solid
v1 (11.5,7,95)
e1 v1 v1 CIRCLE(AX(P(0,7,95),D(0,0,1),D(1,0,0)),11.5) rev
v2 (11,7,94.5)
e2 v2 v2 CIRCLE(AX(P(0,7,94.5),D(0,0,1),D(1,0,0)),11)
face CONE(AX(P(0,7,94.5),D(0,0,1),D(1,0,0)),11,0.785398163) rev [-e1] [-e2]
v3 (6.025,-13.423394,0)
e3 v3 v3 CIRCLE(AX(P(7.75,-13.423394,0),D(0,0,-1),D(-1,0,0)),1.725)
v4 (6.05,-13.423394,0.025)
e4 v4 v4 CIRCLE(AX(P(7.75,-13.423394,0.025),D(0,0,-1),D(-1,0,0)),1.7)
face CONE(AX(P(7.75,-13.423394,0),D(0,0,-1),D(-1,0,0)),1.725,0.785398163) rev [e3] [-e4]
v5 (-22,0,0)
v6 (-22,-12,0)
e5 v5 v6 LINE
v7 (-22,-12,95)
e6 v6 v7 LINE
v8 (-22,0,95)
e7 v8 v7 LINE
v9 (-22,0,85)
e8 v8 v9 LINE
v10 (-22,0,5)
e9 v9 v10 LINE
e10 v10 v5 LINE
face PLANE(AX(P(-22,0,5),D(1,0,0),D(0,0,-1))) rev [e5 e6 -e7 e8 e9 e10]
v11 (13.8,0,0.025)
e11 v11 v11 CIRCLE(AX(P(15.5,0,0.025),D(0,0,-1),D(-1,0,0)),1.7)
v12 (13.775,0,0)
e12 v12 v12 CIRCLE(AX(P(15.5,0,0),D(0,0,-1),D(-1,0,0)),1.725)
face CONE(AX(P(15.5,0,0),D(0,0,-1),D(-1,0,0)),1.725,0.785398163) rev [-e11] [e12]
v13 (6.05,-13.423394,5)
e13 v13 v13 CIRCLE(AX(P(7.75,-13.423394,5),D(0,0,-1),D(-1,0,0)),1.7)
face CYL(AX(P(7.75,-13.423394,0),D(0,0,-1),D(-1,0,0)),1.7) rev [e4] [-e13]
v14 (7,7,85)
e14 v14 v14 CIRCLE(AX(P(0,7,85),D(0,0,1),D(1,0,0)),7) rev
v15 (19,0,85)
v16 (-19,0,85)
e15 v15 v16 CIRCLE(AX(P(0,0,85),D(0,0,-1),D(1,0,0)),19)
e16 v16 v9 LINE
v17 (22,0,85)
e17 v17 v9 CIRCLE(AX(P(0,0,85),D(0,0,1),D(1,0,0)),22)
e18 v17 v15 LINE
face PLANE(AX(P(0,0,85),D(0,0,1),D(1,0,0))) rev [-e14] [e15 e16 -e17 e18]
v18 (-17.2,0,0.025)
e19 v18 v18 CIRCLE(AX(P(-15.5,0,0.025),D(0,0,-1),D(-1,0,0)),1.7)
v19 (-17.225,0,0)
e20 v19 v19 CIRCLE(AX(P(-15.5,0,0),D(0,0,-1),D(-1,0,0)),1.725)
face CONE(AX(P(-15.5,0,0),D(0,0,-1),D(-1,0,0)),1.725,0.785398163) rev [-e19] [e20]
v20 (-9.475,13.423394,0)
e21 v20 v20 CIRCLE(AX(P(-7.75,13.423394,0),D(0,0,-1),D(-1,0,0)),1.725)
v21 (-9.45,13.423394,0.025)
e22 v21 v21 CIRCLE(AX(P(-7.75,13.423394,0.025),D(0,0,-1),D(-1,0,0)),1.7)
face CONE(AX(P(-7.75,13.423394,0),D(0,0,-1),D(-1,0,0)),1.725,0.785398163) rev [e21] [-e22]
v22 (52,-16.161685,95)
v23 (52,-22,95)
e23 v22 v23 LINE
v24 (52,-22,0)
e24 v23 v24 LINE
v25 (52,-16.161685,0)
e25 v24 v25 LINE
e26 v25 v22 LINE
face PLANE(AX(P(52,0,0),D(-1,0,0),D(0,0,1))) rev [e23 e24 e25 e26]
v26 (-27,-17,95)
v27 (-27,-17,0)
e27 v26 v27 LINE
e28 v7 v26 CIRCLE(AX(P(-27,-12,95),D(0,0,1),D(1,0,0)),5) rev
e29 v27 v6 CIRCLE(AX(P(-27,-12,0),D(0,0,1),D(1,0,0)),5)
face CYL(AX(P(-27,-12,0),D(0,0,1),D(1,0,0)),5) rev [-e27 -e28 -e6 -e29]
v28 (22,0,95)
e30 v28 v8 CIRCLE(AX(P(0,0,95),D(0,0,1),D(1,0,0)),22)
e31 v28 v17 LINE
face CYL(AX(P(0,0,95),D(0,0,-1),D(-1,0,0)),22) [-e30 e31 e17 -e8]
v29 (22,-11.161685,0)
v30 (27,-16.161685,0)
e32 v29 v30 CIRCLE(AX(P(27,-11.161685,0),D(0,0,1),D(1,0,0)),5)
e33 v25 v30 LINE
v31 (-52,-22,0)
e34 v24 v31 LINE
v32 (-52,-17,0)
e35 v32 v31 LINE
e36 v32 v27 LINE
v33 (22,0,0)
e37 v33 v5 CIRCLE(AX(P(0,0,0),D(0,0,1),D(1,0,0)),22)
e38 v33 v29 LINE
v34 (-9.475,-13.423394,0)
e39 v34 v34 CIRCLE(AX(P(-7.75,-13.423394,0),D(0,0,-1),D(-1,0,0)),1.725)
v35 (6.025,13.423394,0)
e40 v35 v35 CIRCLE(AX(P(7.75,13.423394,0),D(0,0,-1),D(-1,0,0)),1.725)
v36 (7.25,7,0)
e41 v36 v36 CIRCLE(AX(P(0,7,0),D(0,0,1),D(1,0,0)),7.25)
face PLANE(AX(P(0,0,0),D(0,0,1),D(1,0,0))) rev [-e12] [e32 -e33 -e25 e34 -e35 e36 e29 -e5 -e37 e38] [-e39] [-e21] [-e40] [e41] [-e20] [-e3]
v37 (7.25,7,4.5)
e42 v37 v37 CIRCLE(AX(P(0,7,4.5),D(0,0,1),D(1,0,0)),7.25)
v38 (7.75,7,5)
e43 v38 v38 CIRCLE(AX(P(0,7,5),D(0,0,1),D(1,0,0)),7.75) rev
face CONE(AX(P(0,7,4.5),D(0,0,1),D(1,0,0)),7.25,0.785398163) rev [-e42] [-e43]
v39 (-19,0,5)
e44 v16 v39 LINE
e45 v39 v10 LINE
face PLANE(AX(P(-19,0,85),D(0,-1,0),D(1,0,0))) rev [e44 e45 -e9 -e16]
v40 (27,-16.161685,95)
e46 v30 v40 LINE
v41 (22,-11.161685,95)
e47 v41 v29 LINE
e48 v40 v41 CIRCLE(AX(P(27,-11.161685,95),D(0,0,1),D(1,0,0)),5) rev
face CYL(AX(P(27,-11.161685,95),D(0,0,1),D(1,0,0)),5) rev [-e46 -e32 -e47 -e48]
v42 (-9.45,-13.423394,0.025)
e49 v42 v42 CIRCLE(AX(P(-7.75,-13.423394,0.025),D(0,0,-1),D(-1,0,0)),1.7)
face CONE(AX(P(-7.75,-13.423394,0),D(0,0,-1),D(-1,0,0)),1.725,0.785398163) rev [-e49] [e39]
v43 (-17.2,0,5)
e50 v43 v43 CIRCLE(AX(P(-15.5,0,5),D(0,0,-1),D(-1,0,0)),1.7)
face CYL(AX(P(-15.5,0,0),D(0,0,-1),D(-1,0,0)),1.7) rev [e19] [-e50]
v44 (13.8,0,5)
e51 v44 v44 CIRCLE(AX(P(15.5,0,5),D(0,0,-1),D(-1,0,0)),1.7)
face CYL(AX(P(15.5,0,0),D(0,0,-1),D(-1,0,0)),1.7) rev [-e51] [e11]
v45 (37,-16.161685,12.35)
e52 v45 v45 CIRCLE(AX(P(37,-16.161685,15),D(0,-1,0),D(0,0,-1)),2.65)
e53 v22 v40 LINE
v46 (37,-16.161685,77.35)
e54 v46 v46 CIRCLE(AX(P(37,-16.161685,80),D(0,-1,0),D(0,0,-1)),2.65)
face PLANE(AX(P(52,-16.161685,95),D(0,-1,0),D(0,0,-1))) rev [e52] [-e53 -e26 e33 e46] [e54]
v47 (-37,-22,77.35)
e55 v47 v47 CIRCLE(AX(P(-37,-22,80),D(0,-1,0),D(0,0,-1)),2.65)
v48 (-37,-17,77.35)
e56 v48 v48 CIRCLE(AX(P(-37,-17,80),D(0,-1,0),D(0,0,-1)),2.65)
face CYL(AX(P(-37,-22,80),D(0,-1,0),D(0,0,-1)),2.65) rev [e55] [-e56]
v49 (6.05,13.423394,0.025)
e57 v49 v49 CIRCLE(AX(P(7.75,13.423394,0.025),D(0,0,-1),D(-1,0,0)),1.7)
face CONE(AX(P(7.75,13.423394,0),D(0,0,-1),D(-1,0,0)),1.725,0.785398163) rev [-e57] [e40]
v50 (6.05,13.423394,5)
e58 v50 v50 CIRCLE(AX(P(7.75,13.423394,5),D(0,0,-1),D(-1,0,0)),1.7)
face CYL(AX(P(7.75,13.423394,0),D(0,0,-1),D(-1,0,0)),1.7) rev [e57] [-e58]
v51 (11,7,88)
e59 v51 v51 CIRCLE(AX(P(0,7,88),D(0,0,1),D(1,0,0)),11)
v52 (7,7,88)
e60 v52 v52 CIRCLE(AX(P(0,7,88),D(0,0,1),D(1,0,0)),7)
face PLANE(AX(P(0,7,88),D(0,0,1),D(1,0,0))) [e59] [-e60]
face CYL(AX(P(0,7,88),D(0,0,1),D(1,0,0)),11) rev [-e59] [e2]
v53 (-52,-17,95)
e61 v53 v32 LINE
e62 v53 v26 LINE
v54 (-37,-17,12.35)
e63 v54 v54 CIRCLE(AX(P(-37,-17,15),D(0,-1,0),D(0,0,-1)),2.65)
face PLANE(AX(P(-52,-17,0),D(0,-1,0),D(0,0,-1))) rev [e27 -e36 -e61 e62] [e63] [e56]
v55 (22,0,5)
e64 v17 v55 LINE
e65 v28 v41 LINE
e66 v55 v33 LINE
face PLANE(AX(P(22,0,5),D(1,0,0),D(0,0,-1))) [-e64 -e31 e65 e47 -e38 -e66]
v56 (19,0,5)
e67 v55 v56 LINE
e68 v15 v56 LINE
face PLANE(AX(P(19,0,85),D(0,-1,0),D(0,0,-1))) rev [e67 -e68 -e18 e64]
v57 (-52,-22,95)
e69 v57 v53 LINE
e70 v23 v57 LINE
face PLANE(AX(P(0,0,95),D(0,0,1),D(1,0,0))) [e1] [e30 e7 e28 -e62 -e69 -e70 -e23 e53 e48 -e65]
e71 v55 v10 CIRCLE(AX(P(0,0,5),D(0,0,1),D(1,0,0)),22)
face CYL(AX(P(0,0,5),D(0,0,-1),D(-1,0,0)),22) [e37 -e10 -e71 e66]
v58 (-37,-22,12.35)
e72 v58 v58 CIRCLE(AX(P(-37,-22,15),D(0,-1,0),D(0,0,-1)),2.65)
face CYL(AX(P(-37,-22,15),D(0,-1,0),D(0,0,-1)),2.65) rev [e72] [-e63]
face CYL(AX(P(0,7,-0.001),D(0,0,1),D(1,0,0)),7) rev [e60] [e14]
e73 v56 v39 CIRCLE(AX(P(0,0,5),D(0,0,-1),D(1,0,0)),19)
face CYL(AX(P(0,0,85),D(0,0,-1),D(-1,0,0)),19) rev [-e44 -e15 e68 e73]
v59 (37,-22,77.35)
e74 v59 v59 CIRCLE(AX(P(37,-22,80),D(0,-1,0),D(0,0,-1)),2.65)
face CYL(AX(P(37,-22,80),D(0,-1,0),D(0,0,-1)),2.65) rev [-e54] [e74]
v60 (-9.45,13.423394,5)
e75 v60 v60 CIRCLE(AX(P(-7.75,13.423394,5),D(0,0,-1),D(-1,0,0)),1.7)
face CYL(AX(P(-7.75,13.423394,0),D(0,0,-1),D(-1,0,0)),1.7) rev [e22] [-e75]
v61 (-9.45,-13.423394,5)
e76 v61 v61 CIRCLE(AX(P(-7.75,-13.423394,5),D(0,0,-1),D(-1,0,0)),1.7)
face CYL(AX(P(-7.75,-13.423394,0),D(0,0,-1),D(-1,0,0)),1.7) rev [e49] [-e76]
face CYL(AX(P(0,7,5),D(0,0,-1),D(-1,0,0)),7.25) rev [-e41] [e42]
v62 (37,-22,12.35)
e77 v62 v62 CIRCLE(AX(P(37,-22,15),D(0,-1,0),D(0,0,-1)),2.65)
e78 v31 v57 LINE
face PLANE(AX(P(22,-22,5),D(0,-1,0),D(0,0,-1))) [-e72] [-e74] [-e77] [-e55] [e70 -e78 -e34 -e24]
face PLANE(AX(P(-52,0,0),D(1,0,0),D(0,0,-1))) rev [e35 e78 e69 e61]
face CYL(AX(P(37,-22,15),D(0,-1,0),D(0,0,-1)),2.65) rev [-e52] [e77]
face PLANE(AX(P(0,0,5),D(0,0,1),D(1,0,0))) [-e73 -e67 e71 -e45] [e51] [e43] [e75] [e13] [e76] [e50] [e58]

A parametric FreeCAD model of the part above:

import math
import FreeCAD as App
import Part
import Sketcher

V = App.Vector


def edges_at(feature, points):
    """Names of the edges that pass closest to the given points."""
    edges = feature.Shape.Edges
    near = lambda p: min(range(len(edges)), key=lambda i: edges[i].distToShape(Part.Vertex(*p))[0])
    return sorted({f"Edge{near(p) + 1}" for p in points})


def add_polygon(sketch, points):
    """Adds a closed chain of lines whose ends are joined by coincident constraints."""
    first, n = sketch.GeometryCount, len(points)
    for a, b in zip(points, points[1:] + points[:1]):
        sketch.addGeometry(Part.LineSegment(App.Vector(*a, 0), App.Vector(*b, 0)), False)
    for i in range(n):
        sketch.addConstraint(Sketcher.Constraint("Coincident", first + i, 2, first + (i + 1) % n, 1))

doc = App.newDocument("Part")
body = doc.addObject("PartDesign::Body", "Body")

# Sketch on XY plane
sketch1 = body.newObject("Sketcher::SketchObject", "Sketch")
sketch1.AttachmentSupport = (doc.getObject("XY_Plane"), [""])
sketch1.MapMode = "FlatFace"
sketch1.addGeometry(Part.LineSegment(V(22, -22, 0), V(22, 0, 0)), False)
sketch1.addGeometry(Part.ArcOfCircle(Part.Circle(V(0, 0, 0), V(0, 0, 1), 22), math.radians(0), math.radians(180)), False)
sketch1.addGeometry(Part.LineSegment(V(-22, 0, 0), V(-22, -22, 0)), False)
sketch1.addGeometry(Part.LineSegment(V(-22, -22, 0), V(22, -22, 0)), False)
sketch1.addGeometry(Part.Circle(V(0, 7, 0), V(0, 0, 1), 7), False)
sketch1.addConstraint(Sketcher.Constraint("Tangent", 0, 2, 1, 1))
sketch1.addConstraint(Sketcher.Constraint("Tangent", 1, 2, 2, 1))
sketch1.addConstraint(Sketcher.Constraint("Coincident", 2, 2, 3, 1))
sketch1.addConstraint(Sketcher.Constraint("Coincident", 3, 2, 0, 1))
sketch1.addConstraint(Sketcher.Constraint("Vertical", 0))
sketch1.addConstraint(Sketcher.Constraint("Vertical", 2))
sketch1.addConstraint(Sketcher.Constraint("Horizontal", 3))
sketch1.addConstraint(Sketcher.Constraint("Coincident", 1, 3, -1, 1))
sketch1.addConstraint(Sketcher.Constraint("PointOnObject", 4, 3, -2))
sketch1.addConstraint(Sketcher.Constraint("Radius", 1, 22.0))
sketch1.addConstraint(Sketcher.Constraint("Diameter", 4, 14.5))
sketch1.addConstraint(Sketcher.Constraint("DistanceY", 0, 1, 0, 2, 22.0))
sketch1.addConstraint(Sketcher.Constraint("DistanceY", -1, 1, 4, 3, 7.0))
pad1 = body.newObject("PartDesign::Pad", "Pad")
pad1.Profile = sketch1
pad1.Length = 5

# Sketch on XY plane
sketch2 = body.newObject("Sketcher::SketchObject", "Sketch001")
sketch2.AttachmentSupport = (doc.getObject("XY_Plane"), [""])
sketch2.MapMode = "FlatFace"
sketch2.addGeometry(Part.Circle(V(15.5, 0, 0), V(0, 0, 1), 1.7), False)
sketch2.addGeometry(Part.Circle(V(-15.5, 0, 0), V(0, 0, 1), 1.7), False)
sketch2.addGeometry(Part.Circle(V(-7.8, 13.4, 0), V(0, 0, 1), 1.7), False)
sketch2.addGeometry(Part.Circle(V(7.8, 13.4, 0), V(0, 0, 1), 1.7), False)
sketch2.addGeometry(Part.Circle(V(7.8, -13.4, 0), V(0, 0, 1), 1.7), False)
sketch2.addGeometry(Part.Circle(V(-7.8, -13.4, 0), V(0, 0, 1), 1.7), False)
sketch2.addConstraint(Sketcher.Constraint("Equal", 0, 1))
sketch2.addConstraint(Sketcher.Constraint("Equal", 1, 2))
sketch2.addConstraint(Sketcher.Constraint("Equal", 2, 3))
sketch2.addConstraint(Sketcher.Constraint("Equal", 3, 4))
sketch2.addConstraint(Sketcher.Constraint("Equal", 4, 5))
sketch2.addConstraint(Sketcher.Constraint("Symmetric", 0, 3, 1, 3, -1, 1))
sketch2.addConstraint(Sketcher.Constraint("Symmetric", 2, 3, 4, 3, -1, 1))
sketch2.addConstraint(Sketcher.Constraint("Symmetric", 3, 3, 5, 3, -1, 1))
sketch2.addConstraint(Sketcher.Constraint("Symmetric", 2, 3, 3, 3, -2))
sketch2.addConstraint(Sketcher.Constraint("PointOnObject", 0, 3, -1))
sketch2.addConstraint(Sketcher.Constraint("Diameter", 0, 3.4))
sketch2.addConstraint(Sketcher.Constraint("DistanceX", 1, 3, 0, 3, 31.0))
sketch2.addConstraint(Sketcher.Constraint("DistanceX", 2, 3, 3, 3, 15.5))
sketch2.addConstraint(Sketcher.Constraint("DistanceY", -1, 1, 2, 3, 13.423394))
doc.recompute()
hole = body.newObject("PartDesign::Hole", "Hole")
hole.Profile = sketch2
hole.ThreadType = "None"
hole.Diameter = 3.4
hole.DepthType = "ThroughAll"
hole.HoleCutType = "Countersink"
hole.HoleCutDiameter = 3.45
hole.HoleCutCountersinkAngle = 90
hole.Reversed = True

# Sketch on XY plane
sketch3 = body.newObject("Sketcher::SketchObject", "Sketch002")
sketch3.AttachmentSupport = (doc.getObject("XY_Plane"), [""])
sketch3.MapMode = "FlatFace"
sketch3.AttachmentOffset = App.Placement(V(0, 0, 5), App.Rotation())
sketch3.addGeometry(Part.LineSegment(V(-19, 0, 0), V(-22, 0, 0)), False)
sketch3.addGeometry(Part.LineSegment(V(-22, 0, 0), V(-22, -22, 0)), False)
sketch3.addGeometry(Part.LineSegment(V(-22, -22, 0), V(22, -22, 0)), False)
sketch3.addGeometry(Part.LineSegment(V(22, -22, 0), V(22, 0, 0)), False)
sketch3.addGeometry(Part.LineSegment(V(22, 0, 0), V(19, 0, 0)), False)
sketch3.addGeometry(Part.ArcOfCircle(Part.Circle(V(0, 0, 0), V(0, 0, 1), 19), math.radians(180), math.radians(360)), False)
sketch3.addConstraint(Sketcher.Constraint("Coincident", 0, 2, 1, 1))
sketch3.addConstraint(Sketcher.Constraint("Coincident", 1, 2, 2, 1))
sketch3.addConstraint(Sketcher.Constraint("Coincident", 2, 2, 3, 1))
sketch3.addConstraint(Sketcher.Constraint("Coincident", 3, 2, 4, 1))
sketch3.addConstraint(Sketcher.Constraint("Coincident", 4, 2, 5, 2))
sketch3.addConstraint(Sketcher.Constraint("Coincident", 5, 1, 0, 1))
sketch3.addConstraint(Sketcher.Constraint("Horizontal", 0))
sketch3.addConstraint(Sketcher.Constraint("Vertical", 1))
sketch3.addConstraint(Sketcher.Constraint("Horizontal", 2))
sketch3.addConstraint(Sketcher.Constraint("Vertical", 3))
sketch3.addConstraint(Sketcher.Constraint("Horizontal", 4))
sketch3.addConstraint(Sketcher.Constraint("Coincident", 5, 3, -1, 1))
sketch3.addConstraint(Sketcher.Constraint("Symmetric", 0, 2, 3, 2, -1, 1))
sketch3.addConstraint(Sketcher.Constraint("PointOnObject", 0, 2, -1))
sketch3.addConstraint(Sketcher.Constraint("Radius", 5, 19.0))
sketch3.addConstraint(Sketcher.Constraint("DistanceX", 0, 2, 0, 1, 3.0))
sketch3.addConstraint(Sketcher.Constraint("DistanceY", 1, 2, 1, 1, 22.0))
pad2 = body.newObject("PartDesign::Pad", "Pad001")
pad2.Profile = sketch3
pad2.Length = 80

# Sketch on XY plane
sketch4 = body.newObject("Sketcher::SketchObject", "Sketch003")
sketch4.AttachmentSupport = (doc.getObject("XY_Plane"), [""])
sketch4.MapMode = "FlatFace"
sketch4.AttachmentOffset = App.Placement(V(0, 0, 85), App.Rotation())
sketch4.addGeometry(Part.LineSegment(V(22, -22, 0), V(22, 0, 0)), False)
sketch4.addGeometry(Part.ArcOfCircle(Part.Circle(V(0, 0, 0), V(0, 0, 1), 22), math.radians(0), math.radians(180)), False)
sketch4.addGeometry(Part.LineSegment(V(-22, 0, 0), V(-22, -22, 0)), False)
sketch4.addGeometry(Part.LineSegment(V(-22, -22, 0), V(22, -22, 0)), False)
sketch4.addConstraint(Sketcher.Constraint("Tangent", 0, 2, 1, 1))
sketch4.addConstraint(Sketcher.Constraint("Tangent", 1, 2, 2, 1))
sketch4.addConstraint(Sketcher.Constraint("Coincident", 2, 2, 3, 1))
sketch4.addConstraint(Sketcher.Constraint("Coincident", 3, 2, 0, 1))
sketch4.addConstraint(Sketcher.Constraint("Vertical", 0))
sketch4.addConstraint(Sketcher.Constraint("Vertical", 2))
sketch4.addConstraint(Sketcher.Constraint("Horizontal", 3))
sketch4.addConstraint(Sketcher.Constraint("Coincident", 1, 3, -1, 1))
sketch4.addConstraint(Sketcher.Constraint("Radius", 1, 22.0))
sketch4.addConstraint(Sketcher.Constraint("DistanceY", 0, 1, 0, 2, 22.0))
pad3 = body.newObject("PartDesign::Pad", "Pad002")
pad3.Profile = sketch4
pad3.Length = 10

# Sketch on XY plane
sketch5 = body.newObject("Sketcher::SketchObject", "Sketch004")
sketch5.AttachmentSupport = (doc.getObject("XY_Plane"), [""])
sketch5.MapMode = "FlatFace"
sketch5.AttachmentOffset = App.Placement(V(0, 0, 95), App.Rotation())
sketch5.addGeometry(Part.Circle(V(0, 7, 0), V(0, 0, 1), 11), False)
sketch5.addConstraint(Sketcher.Constraint("PointOnObject", 0, 3, -2))
sketch5.addConstraint(Sketcher.Constraint("Diameter", 0, 22.0))
sketch5.addConstraint(Sketcher.Constraint("DistanceY", -1, 1, 0, 3, 7.0))
pocket1 = body.newObject("PartDesign::Pocket", "Pocket")
pocket1.Profile = sketch5
pocket1.Length = 7

# Sketch on XY plane
sketch6 = body.newObject("Sketcher::SketchObject", "Sketch005")
sketch6.AttachmentSupport = (doc.getObject("XY_Plane"), [""])
sketch6.MapMode = "FlatFace"
sketch6.AttachmentOffset = App.Placement(V(0, 0, 88), App.Rotation())
sketch6.addGeometry(Part.Circle(V(0, 7, 0), V(0, 0, 1), 7), False)
sketch6.addConstraint(Sketcher.Constraint("PointOnObject", 0, 3, -2))
sketch6.addConstraint(Sketcher.Constraint("Diameter", 0, 14.0))
sketch6.addConstraint(Sketcher.Constraint("DistanceY", -1, 1, 0, 3, 7.0))
pocket2 = body.newObject("PartDesign::Pocket", "Pocket001")
pocket2.Profile = sketch6
pocket2.Type = "UpToFirst"
doc.recompute()

chamfer = body.newObject("PartDesign::Chamfer", "Chamfer")
chamfer.Base = (pocket2, edges_at(pocket2, [(-11, 7, 95)]))
chamfer.Size = 0.5
doc.recompute()

chamfer2 = body.newObject("PartDesign::Chamfer", "Chamfer001")
chamfer2.Base = (chamfer, edges_at(chamfer, [(-7.25, 7, 5)]))
chamfer2.Size = 0.5

# Sketch on YZ plane
sketch7 = body.newObject("Sketcher::SketchObject", "Sketch006")
sketch7.AttachmentSupport = (doc.getObject("YZ_Plane"), [""])
sketch7.MapMode = "FlatFace"
sketch7.AttachmentOffset = App.Placement(V(0, 0, 22), App.Rotation())
add_polygon(sketch7, [(-16, 95), (-22, 95), (-22, 0), (-16, 0)])  # lines 0-3
sketch7.addConstraint(Sketcher.Constraint("Horizontal", 0))
sketch7.addConstraint(Sketcher.Constraint("Vertical", 1))
sketch7.addConstraint(Sketcher.Constraint("Horizontal", 2))
sketch7.addConstraint(Sketcher.Constraint("Vertical", 3))
sketch7.addConstraint(Sketcher.Constraint("PointOnObject", 1, 2, -1))
sketch7.addConstraint(Sketcher.Constraint("DistanceY", 1, 2, 1, 1, 95.0))
sketch7.addConstraint(Sketcher.Constraint("DistanceX", 0, 2, -1, 1, 22.0))
sketch7.addConstraint(Sketcher.Constraint("DistanceX", 0, 2, 0, 1, 5.838315))
pad4 = body.newObject("PartDesign::Pad", "Pad003")
pad4.Profile = sketch7
pad4.Length = 30

# Sketch on YZ plane
sketch8 = body.newObject("Sketcher::SketchObject", "Sketch007")
sketch8.AttachmentSupport = (doc.getObject("YZ_Plane"), [""])
sketch8.MapMode = "FlatFace"
sketch8.AttachmentOffset = App.Placement(V(0, 0, -22), App.Rotation())
add_polygon(sketch8, [(-17, 0), (-22, 0), (-22, 95), (-17, 95)])  # lines 0-3
sketch8.addConstraint(Sketcher.Constraint("Horizontal", 0))
sketch8.addConstraint(Sketcher.Constraint("Vertical", 1))
sketch8.addConstraint(Sketcher.Constraint("Horizontal", 2))
sketch8.addConstraint(Sketcher.Constraint("Vertical", 3))
sketch8.addConstraint(Sketcher.Constraint("PointOnObject", 0, 2, -1))
sketch8.addConstraint(Sketcher.Constraint("DistanceX", 0, 2, 0, 1, 5.0))
sketch8.addConstraint(Sketcher.Constraint("DistanceY", 1, 1, 1, 2, 95.0))
sketch8.addConstraint(Sketcher.Constraint("DistanceX", 0, 2, -1, 1, 22.0))
pad5 = body.newObject("PartDesign::Pad", "Pad004")
pad5.Profile = sketch8
pad5.Length = 30
pad5.Reversed = True
doc.recompute()

fillet = body.newObject("PartDesign::Fillet", "Fillet")
fillet.Base = (pad5, edges_at(pad5, [(22, -16.162, 47.5), (-22, -17, 47.5)]))
fillet.Radius = 5

# Sketch on XZ plane
sketch9 = body.newObject("Sketcher::SketchObject", "Sketch008")
sketch9.AttachmentSupport = (doc.getObject("XZ_Plane"), [""])
sketch9.MapMode = "FlatFace"
sketch9.AttachmentOffset = App.Placement(V(0, 0, 22), App.Rotation())
sketch9.addGeometry(Part.Circle(V(-37, 80, 0), V(0, 0, 1), 2.6), False)
sketch9.addGeometry(Part.Circle(V(37, 80, 0), V(0, 0, 1), 2.6), False)
sketch9.addGeometry(Part.Circle(V(37, 15, 0), V(0, 0, 1), 2.6), False)
sketch9.addGeometry(Part.Circle(V(-37, 15, 0), V(0, 0, 1), 2.6), False)
sketch9.addConstraint(Sketcher.Constraint("Equal", 0, 1))
sketch9.addConstraint(Sketcher.Constraint("Equal", 1, 2))
sketch9.addConstraint(Sketcher.Constraint("Equal", 2, 3))
sketch9.addConstraint(Sketcher.Constraint("Symmetric", 0, 3, 1, 3, -2))
sketch9.addConstraint(Sketcher.Constraint("Symmetric", 2, 3, 3, 3, -2))
sketch9.addConstraint(Sketcher.Constraint("Vertical", 1, 3, 2, 3))
sketch9.addConstraint(Sketcher.Constraint("Diameter", 0, 5.3))
sketch9.addConstraint(Sketcher.Constraint("DistanceX", 0, 3, -1, 1, 37.0))
sketch9.addConstraint(Sketcher.Constraint("DistanceY", -1, 1, 0, 3, 80.0))
sketch9.addConstraint(Sketcher.Constraint("DistanceY", -1, 1, 2, 3, 15.0))
doc.recompute()
hole2 = body.newObject("PartDesign::Hole", "Hole001")
hole2.Profile = sketch9
hole2.ThreadType = "None"
hole2.Diameter = 5.3
hole2.DepthType = "ThroughAll"

doc.recompute()
